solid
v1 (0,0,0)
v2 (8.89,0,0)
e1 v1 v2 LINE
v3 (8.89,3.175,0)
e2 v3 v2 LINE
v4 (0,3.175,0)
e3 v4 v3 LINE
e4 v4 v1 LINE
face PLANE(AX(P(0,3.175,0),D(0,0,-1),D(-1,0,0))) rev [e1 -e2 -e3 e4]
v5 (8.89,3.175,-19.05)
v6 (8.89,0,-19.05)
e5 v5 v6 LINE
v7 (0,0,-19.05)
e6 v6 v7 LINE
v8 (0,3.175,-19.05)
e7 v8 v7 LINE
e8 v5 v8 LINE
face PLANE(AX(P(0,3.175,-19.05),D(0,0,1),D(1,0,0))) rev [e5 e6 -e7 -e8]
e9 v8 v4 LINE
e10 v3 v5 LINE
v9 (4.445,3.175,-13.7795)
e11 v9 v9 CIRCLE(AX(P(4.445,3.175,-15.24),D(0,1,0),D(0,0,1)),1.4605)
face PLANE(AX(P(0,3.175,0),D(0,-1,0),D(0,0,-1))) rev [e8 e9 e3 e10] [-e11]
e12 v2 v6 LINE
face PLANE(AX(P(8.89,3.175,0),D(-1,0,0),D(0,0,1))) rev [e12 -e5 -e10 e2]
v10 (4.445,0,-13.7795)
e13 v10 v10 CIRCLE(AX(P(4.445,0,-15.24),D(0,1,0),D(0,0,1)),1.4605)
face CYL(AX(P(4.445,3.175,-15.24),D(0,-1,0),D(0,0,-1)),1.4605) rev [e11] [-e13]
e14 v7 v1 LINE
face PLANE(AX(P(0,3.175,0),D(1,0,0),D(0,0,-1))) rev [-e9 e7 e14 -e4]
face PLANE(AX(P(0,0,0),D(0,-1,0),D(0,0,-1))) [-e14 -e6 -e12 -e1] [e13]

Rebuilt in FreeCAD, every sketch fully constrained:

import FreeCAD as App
import Part
import Sketcher
Q = App.Units.Quantity


def add_polygon(sketch, points):
    """Adds a closed chain of lines whose ends are joined by coincident constraints."""
    first, n = sketch.GeometryCount, len(points)
    for a, b in zip(points, points[1:] + points[:1]):
        sketch.addGeometry(Part.LineSegment(App.Vector(*a, 0), App.Vector(*b, 0)), False)
    for i in range(n):
        sketch.addConstraint(Sketcher.Constraint("Coincident", first + i, 2, first + (i + 1) % n, 1))

doc = App.newDocument("Part")
body = doc.addObject("PartDesign::Body", "Body")

# Sketch on XZ plane
sketch1 = body.newObject("Sketcher::SketchObject", "Sketch")
sketch1.AttachmentSupport = (doc.getObject("XZ_Plane"), [""])
sketch1.MapMode = "FlatFace"
add_polygon(sketch1, [(0, -19.1), (0, 0), (8.9, 0), (8.9, -19.1)])  # lines 0-3
sketch1.addGeometry(Part.Circle(App.Vector(4.4, -15.2, 0), App.Vector(0, 0, 1), 1.5), False)  # 4
sketch1.addConstraint(Sketcher.Constraint("Vertical", 0))
sketch1.addConstraint(Sketcher.Constraint("Horizontal", 1))
sketch1.addConstraint(Sketcher.Constraint("Vertical", 2))
sketch1.addConstraint(Sketcher.Constraint("Horizontal", 3))
sketch1.addConstraint(Sketcher.Constraint("Coincident", 0, 2, -1, 1))
sketch1.addConstraint(Sketcher.Constraint("Diameter", 4, Q("0.115 in")))
sketch1.addConstraint(Sketcher.Constraint("DistanceX", 1, 1, 1, 2, Q("0.35 in")))
sketch1.addConstraint(Sketcher.Constraint("DistanceY", 0, 1, 0, 2, Q("0.75 in")))
sketch1.addConstraint(Sketcher.Constraint("DistanceY", 4, 3, -1, 1, Q("0.6 in")))
sketch1.addConstraint(Sketcher.Constraint("DistanceX", -1, 1, 4, 3, Q("0.175 in")))
pad1 = body.newObject("PartDesign::Pad", "Pad")
pad1.Profile = sketch1
pad1.Length = Q("0.125 in")
pad1.Reversed = True

doc.recompute()
